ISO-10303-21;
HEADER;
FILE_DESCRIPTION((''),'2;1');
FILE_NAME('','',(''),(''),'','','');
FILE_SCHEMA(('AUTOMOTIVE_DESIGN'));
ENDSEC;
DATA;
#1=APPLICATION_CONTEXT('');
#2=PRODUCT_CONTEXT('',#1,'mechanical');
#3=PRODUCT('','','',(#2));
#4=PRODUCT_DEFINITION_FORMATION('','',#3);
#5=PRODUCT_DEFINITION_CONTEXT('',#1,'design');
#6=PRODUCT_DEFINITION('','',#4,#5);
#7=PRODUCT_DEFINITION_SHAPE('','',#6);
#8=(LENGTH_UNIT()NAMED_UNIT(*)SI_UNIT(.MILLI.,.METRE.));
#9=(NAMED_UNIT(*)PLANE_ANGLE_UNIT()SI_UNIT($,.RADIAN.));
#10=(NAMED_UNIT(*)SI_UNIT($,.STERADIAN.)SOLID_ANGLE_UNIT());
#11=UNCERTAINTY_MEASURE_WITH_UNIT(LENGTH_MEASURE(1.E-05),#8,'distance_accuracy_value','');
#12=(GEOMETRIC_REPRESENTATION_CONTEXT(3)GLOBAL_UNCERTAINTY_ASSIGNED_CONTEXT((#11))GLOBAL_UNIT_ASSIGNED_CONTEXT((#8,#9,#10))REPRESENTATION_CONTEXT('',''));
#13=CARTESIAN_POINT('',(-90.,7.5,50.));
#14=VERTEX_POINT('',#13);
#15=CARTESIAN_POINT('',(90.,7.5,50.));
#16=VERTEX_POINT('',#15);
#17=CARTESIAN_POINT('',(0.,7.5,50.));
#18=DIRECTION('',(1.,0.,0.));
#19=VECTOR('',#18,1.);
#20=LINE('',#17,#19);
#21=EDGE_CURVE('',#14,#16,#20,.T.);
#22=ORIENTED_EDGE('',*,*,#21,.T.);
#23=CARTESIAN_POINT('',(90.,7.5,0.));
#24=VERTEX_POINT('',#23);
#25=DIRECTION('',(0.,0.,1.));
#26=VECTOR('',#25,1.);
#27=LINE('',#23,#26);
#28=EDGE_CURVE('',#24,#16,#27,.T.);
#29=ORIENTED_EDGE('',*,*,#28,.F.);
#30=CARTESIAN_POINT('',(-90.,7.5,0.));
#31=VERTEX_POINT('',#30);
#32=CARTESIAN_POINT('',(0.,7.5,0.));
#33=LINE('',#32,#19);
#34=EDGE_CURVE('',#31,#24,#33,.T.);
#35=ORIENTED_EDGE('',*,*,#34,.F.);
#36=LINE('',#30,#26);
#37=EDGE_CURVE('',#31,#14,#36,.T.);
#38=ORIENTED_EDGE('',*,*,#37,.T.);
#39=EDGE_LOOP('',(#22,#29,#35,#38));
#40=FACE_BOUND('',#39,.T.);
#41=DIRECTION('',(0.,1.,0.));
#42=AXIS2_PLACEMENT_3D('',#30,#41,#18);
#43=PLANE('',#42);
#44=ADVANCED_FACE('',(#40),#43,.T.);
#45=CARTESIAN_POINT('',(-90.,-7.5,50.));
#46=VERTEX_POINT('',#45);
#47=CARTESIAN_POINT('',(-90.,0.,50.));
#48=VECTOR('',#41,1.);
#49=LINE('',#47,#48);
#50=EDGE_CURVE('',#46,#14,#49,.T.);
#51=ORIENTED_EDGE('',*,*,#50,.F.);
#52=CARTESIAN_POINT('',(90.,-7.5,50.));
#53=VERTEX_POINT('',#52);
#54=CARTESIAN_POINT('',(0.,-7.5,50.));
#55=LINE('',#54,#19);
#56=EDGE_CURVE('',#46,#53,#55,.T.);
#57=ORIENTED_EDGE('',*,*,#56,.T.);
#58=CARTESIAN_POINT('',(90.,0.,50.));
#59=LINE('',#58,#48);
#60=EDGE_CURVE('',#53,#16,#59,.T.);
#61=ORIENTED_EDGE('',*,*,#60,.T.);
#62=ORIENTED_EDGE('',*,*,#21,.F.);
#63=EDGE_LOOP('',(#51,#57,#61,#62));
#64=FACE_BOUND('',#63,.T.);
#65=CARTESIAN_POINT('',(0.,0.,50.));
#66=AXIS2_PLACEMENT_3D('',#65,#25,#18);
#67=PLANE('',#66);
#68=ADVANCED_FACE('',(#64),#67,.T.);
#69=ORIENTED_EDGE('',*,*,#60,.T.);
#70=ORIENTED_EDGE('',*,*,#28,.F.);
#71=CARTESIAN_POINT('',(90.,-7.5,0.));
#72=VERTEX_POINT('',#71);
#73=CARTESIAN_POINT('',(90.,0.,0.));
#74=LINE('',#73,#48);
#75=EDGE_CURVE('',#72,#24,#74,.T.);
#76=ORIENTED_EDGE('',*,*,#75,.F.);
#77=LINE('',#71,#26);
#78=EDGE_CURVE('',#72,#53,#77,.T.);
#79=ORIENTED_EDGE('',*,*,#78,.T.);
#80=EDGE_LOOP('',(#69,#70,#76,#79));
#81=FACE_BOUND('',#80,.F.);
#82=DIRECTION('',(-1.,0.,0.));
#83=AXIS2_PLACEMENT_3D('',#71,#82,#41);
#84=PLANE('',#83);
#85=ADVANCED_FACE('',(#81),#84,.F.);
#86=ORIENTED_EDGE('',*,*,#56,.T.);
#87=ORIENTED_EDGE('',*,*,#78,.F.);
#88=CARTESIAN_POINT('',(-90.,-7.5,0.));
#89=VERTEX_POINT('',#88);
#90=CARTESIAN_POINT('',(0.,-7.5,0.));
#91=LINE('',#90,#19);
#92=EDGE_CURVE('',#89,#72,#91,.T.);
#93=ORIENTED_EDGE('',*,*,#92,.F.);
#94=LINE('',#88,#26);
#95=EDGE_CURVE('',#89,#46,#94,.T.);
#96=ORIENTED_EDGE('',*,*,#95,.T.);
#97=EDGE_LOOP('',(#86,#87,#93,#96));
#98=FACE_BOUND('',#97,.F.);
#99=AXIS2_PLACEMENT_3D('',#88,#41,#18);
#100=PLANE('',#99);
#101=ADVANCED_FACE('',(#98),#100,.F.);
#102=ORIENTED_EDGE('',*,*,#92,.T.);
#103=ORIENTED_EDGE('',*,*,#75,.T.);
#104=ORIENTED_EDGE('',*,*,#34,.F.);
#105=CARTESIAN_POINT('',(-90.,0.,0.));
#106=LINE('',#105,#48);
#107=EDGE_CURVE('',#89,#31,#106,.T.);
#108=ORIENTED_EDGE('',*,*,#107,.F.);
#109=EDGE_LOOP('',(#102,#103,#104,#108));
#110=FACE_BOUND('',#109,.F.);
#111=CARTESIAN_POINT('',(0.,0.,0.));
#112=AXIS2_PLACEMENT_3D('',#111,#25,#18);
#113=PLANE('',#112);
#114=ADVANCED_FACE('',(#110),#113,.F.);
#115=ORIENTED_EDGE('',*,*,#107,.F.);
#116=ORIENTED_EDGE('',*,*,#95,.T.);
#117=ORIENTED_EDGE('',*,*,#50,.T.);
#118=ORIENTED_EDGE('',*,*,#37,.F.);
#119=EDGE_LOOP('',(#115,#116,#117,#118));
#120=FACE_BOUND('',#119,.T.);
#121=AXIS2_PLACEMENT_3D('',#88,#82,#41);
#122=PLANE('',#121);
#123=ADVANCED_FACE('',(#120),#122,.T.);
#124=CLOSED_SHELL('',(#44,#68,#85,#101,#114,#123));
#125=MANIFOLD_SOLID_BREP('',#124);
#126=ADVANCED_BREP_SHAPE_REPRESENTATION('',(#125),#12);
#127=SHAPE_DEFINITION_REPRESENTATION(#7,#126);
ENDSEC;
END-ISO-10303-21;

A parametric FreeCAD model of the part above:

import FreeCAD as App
import Part
import Sketcher

V = App.Vector
Q = App.Units.Quantity

doc = App.newDocument("Part")
body = doc.addObject("PartDesign::Body", "Body")

# Sketch on XY plane
sketch1 = body.newObject("Sketcher::SketchObject", "Sketch")
sketch1.AttachmentSupport = (doc.getObject("XY_Plane"), [""])
sketch1.MapMode = "FlatFace"
sketch1.addGeometry([
    Part.LineSegment(V(-90, 8, 0), V(-90, -8, 0)),
    Part.LineSegment(V(-90, -8, 0), V(90, -8, 0)),
    Part.LineSegment(V(90, -8, 0), V(90, 8, 0)),
    Part.LineSegment(V(90, 8, 0), V(-90, 8, 0)),
], False)
sketch1.addConstraint([
    Sketcher.Constraint("Coincident", 0, 2, 1, 1),
    Sketcher.Constraint("Coincident", 1, 2, 2, 1),
    Sketcher.Constraint("Coincident", 2, 2, 3, 1),
    Sketcher.Constraint("Coincident", 3, 2, 0, 1),
    Sketcher.Constraint("Vertical", 0),
    Sketcher.Constraint("Horizontal", 1),
    Sketcher.Constraint("Vertical", 2),
    Sketcher.Constraint("Horizontal", 3),
    Sketcher.Constraint("Symmetric", 0, 2, 2, 2, -1, 1),
    Sketcher.Constraint("DistanceX", 1, 1, 1, 2, Q("180 mm")),
    Sketcher.Constraint("DistanceY", 0, 2, 0, 1, Q("15 mm")),
])
pad1 = body.newObject("PartDesign::Pad", "Pad")
pad1.Profile = sketch1
pad1.Length = 50

doc.recompute()
